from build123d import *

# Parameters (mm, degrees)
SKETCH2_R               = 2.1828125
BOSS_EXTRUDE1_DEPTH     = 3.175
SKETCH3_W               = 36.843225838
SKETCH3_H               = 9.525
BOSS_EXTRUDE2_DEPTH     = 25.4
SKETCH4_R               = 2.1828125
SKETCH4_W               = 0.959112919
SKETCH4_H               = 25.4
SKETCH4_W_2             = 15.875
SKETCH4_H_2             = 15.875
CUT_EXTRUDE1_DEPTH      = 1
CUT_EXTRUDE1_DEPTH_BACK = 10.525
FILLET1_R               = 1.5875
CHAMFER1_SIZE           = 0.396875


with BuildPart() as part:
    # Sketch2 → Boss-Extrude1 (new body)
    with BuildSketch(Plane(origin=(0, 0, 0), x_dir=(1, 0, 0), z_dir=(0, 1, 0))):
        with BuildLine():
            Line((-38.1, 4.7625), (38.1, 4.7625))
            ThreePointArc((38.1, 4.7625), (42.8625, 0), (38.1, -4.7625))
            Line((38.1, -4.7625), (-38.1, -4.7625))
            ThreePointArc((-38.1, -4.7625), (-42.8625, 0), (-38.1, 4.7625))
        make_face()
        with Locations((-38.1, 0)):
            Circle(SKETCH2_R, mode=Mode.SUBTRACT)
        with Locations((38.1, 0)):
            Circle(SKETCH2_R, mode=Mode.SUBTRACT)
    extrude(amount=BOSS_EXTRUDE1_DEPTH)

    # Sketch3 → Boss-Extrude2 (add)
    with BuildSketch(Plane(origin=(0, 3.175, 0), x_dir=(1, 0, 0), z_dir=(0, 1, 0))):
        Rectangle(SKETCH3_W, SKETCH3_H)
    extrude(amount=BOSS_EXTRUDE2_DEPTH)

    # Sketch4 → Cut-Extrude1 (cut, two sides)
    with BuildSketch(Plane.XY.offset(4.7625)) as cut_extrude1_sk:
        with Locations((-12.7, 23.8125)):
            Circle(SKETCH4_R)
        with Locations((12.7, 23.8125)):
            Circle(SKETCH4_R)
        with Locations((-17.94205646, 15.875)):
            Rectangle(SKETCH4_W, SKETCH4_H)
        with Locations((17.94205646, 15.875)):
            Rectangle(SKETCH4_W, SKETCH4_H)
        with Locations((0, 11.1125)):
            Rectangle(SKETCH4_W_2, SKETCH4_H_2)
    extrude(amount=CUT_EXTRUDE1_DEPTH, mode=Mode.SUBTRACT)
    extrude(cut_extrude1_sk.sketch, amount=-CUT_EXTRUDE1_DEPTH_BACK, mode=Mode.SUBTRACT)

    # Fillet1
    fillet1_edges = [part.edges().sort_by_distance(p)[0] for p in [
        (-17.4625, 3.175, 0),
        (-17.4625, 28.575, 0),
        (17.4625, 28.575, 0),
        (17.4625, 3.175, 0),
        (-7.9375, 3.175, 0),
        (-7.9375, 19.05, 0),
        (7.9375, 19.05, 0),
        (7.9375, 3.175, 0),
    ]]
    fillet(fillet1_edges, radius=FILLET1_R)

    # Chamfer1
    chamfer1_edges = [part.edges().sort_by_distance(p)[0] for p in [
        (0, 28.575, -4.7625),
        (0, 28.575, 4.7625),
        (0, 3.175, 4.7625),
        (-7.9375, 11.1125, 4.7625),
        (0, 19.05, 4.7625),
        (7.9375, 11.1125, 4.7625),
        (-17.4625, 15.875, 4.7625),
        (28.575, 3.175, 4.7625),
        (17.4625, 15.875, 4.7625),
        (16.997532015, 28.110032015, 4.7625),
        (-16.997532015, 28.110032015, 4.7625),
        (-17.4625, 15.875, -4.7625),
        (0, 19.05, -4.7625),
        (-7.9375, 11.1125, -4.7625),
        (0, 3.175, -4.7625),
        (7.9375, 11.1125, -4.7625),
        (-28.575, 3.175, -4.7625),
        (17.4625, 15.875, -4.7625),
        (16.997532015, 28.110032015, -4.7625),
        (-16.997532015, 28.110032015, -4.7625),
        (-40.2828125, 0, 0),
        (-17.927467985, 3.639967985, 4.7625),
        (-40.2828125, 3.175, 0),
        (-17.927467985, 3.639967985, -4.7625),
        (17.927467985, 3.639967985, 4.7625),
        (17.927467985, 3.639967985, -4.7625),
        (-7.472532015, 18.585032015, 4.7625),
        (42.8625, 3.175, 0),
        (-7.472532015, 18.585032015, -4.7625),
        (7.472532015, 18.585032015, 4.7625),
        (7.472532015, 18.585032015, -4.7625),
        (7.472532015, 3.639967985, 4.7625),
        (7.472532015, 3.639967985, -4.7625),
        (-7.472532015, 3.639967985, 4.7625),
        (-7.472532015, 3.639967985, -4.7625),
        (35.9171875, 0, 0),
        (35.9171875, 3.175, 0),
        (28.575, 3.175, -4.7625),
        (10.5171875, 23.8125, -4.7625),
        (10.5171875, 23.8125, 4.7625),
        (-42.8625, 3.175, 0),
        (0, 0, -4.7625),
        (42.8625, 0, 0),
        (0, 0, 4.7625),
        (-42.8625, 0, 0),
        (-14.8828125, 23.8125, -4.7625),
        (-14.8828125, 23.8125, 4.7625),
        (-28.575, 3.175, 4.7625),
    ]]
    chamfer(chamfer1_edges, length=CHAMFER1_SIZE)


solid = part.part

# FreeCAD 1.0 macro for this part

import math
import FreeCAD as App
import Part
import Sketcher
Q = App.Units.Quantity


def edges_at(feature, points):
    """Names of the edges that pass closest to the given points."""
    edges = feature.Shape.Edges
    near = lambda p: min(range(len(edges)), key=lambda i: edges[i].distToShape(Part.Vertex(*p))[0])
    return sorted({f"Edge{near(p) + 1}" for p in points})


def add_polygon(sketch, points):
    """Adds a closed chain of lines whose ends are joined by coincident constraints."""
    first, n = sketch.GeometryCount, len(points)
    for a, b in zip(points, points[1:] + points[:1]):
        sketch.addGeometry(Part.LineSegment(App.Vector(*a, 0), App.Vector(*b, 0)), False)
    for i in range(n):
        sketch.addConstraint(Sketcher.Constraint("Coincident", first + i, 2, first + (i + 1) % n, 1))

doc = App.newDocument("Part")
body = doc.addObject("PartDesign::Body", "Body")

sketch1 = doc.addObject("Sketcher::SketchObject", "Sketch")
body.addObject(sketch1)
sketch1.AttachmentSupport = (doc.XZ_Plane, [""])
sketch1.MapMode = "FlatFace"
sketch1.addGeometry([
    Part.LineSegment(App.Vector(38.1, -4.8, 0), App.Vector(-38.1, -4.8, 0)),
    Part.ArcOfCircle(Part.Circle(App.Vector(-38.1, 0, 0), App.Vector(0, 0, 1), 4.8), math.radians(90), math.radians(270)),
    Part.LineSegment(App.Vector(-38.1, 4.8, 0), App.Vector(38.1, 4.8, 0)),
    Part.ArcOfCircle(Part.Circle(App.Vector(38.1, 0, 0), App.Vector(0, 0, 1), 4.8), math.radians(-90), math.radians(90)),
    Part.Circle(App.Vector(38.1, 0, 0), App.Vector(0, 0, 1), 2.2),
    Part.Circle(App.Vector(-38.1, 0, 0), App.Vector(0, 0, 1), 2.2),
], False)
sketch1.addConstraint([
    Sketcher.Constraint("Tangent", 0, 2, 1, 2),
    Sketcher.Constraint("Tangent", 1, 1, 2, 1),
    Sketcher.Constraint("Tangent", 2, 2, 3, 2),
    Sketcher.Constraint("Tangent", 3, 1, 0, 1),
    Sketcher.Constraint("Horizontal", 0),
    Sketcher.Constraint("Horizontal", 2),
    Sketcher.Constraint("Coincident", 4, 3, 3, 3),
    Sketcher.Constraint("Coincident", 5, 3, 1, 3),
    Sketcher.Constraint("Equal", 4, 5),
    Sketcher.Constraint("Symmetric", 1, 3, 3, 3, -1, 1),
    Sketcher.Constraint("DistanceX", 0, 2, 0, 1, Q("3 in")),
    Sketcher.Constraint("Diameter", 4, Q("0.171875 in")),
    Sketcher.Constraint("Radius", 1, Q("0.1875 in")),
])
pad1 = doc.addObject("PartDesign::Pad", "Pad")
body.addObject(pad1)
pad1.Profile = sketch1
pad1.Length = Q("0.125 in")
pad1.Reversed = True

sketch2 = doc.addObject("Sketcher::SketchObject", "Sketch001")
body.addObject(sketch2)
sketch2.AttachmentSupport = (doc.XZ_Plane, [""])
sketch2.MapMode = "FlatFace"
sketch2.AttachmentOffset = App.Placement(App.Vector(0, 0, -0.125 * 25.4), App.Rotation())
add_polygon(sketch2, [(-18, -5), (-18, 5), (18, 5), (18, -5)])
sketch2.addConstraint([
    Sketcher.Constraint("Vertical", 0),
    Sketcher.Constraint("Horizontal", 1),
    Sketcher.Constraint("Vertical", 2),
    Sketcher.Constraint("Horizontal", 3),
    Sketcher.Constraint("Symmetric", 0, 2, 2, 2, -1, 1),
    Sketcher.Constraint("DistanceY", 0, 1, 0, 2, Q("0.375 in")),
    Sketcher.Constraint("DistanceX", 1, 1, 1, 2, 36.843226),
])
pad2 = doc.addObject("PartDesign::Pad", "Pad001")
body.addObject(pad2)
pad2.Profile = sketch2
pad2.Length = Q("1 in")
pad2.Reversed = True

sketch3 = doc.addObject("Sketcher::SketchObject", "Sketch002")
body.addObject(sketch3)
sketch3.AttachmentSupport = (doc.XY_Plane, [""])
sketch3.MapMode = "FlatFace"
sketch3.AttachmentOffset = App.Placement(App.Vector(0, 0, 0.1875 * 25.4), App.Rotation())
sketch3.addGeometry(Part.Circle(App.Vector(-12.7, 23.8, 0), App.Vector(0, 0, 1), 2.2), False)
sketch3.addGeometry(Part.Circle(App.Vector(12.7, 23.8, 0), App.Vector(0, 0, 1), 2.2), False)
add_polygon(sketch3, [(-18.4, 28.6), (-18.4, 3.2), (-17.5, 3.2), (-17.5, 28.6)])
add_polygon(sketch3, [(17.5, 28.6), (17.5, 3.2), (18.4, 3.2), (18.4, 28.6)])
add_polygon(sketch3, [(-7.9, 19.1), (-7.9, 3.2), (7.9, 3.2), (7.9, 19.1)])
sketch3.addConstraint([
    Sketcher.Constraint("Vertical", 2),
    Sketcher.Constraint("Horizontal", 3),
    Sketcher.Constraint("Vertical", 4),
    Sketcher.Constraint("Horizontal", 5),
    Sketcher.Constraint("Vertical", 6),
    Sketcher.Constraint("Horizontal", 7),
    Sketcher.Constraint("Vertical", 8),
    Sketcher.Constraint("Horizontal", 9),
    Sketcher.Constraint("Vertical", 10),
    Sketcher.Constraint("Horizontal", 11),
    Sketcher.Constraint("Vertical", 12),
    Sketcher.Constraint("Horizontal", 13),
    Sketcher.Constraint("Equal", 0, 1),
    Sketcher.Constraint("Symmetric", 0, 3, 1, 3, -2),
    Sketcher.Constraint("Symmetric", 3, 2, 6, 2, -2),
    Sketcher.Constraint("Symmetric", 5, 2, 8, 2, -2),
    Sketcher.Constraint("Horizontal", 7, 2, 10, 2),
    Sketcher.Constraint("Equal", 13, 10),
    Sketcher.Constraint("DistanceY", 2, 2, 2, 1, Q("1 in")),
    Sketcher.Constraint("Diameter", 0, Q("0.171875 in")),
    Sketcher.Constraint("DistanceX", 0, 3, 1, 3, Q("1 in")),
    Sketcher.Constraint("DistanceX", 10, 2, 6, 2, Q("1 in")),
    Sketcher.Constraint("DistanceX", 3, 2, 11, 2, Q("1 in")),
    Sketcher.Constraint("DistanceX", 11, 1, 11, 2, Q("0.625 in")),
    Sketcher.Constraint("DistanceY", -1, 1, 12, 2, Q("0.75 in")),
    Sketcher.Constraint("DistanceY", -1, 1, 0, 3, Q("0.9375 in")),
    Sketcher.Constraint("DistanceX", 3, 1, 3, 2, 0.959113),
])
pocket1 = doc.addObject("PartDesign::Pocket", "Pocket")
body.addObject(pocket1)
pocket1.Profile = sketch3
pocket1.Type = "ThroughAll"
pocket1.Midplane = True
doc.recompute()

fillet = doc.addObject("PartDesign::Fillet", "Fillet")
body.addObject(fillet)
fillet.Base = (pocket1, edges_at(pocket1, [
    (-17.463, 3.175, 0),
    (-17.463, 28.575, 0),
    (17.463, 28.575, 0),
    (17.463, 3.175, 0),
    (-7.938, 3.175, 0),
    (-7.938, 19.05, 0),
    (7.938, 19.05, 0),
    (7.938, 3.175, 0),
]))
fillet.Radius = Q("0.0625 in")
doc.recompute()

chamfer = doc.addObject("PartDesign::Chamfer", "Chamfer")
body.addObject(chamfer)
chamfer.Base = (fillet, edges_at(fillet, [
    (0, 28.575, -4.763),
    (0, 28.575, 4.763),
    (0, 3.175, 4.763),
    (-7.938, 11.113, 4.763),
    (0, 19.05, 4.763),
    (7.938, 11.113, 4.763),
    (-17.463, 15.875, 4.763),
    (28.575, 3.175, 4.763),
    (17.463, 15.875, 4.763),
    (16.998, 28.11, 4.763),
    (-16.998, 28.11, 4.763),
    (-17.463, 15.875, -4.763),
    (0, 19.05, -4.763),
    (-7.938, 11.113, -4.763),
    (0, 3.175, -4.763),
    (7.938, 11.113, -4.763),
    (-28.575, 3.175, -4.763),
    (17.463, 15.875, -4.763),
    (16.998, 28.11, -4.763),
    (-16.998, 28.11, -4.763),
    (-40.283, 0, 0),
    (-17.927, 3.64, 4.763),
    (-40.283, 3.175, 0),
    (-17.927, 3.64, -4.763),
    (17.927, 3.64, 4.763),
    (17.927, 3.64, -4.763),
    (-7.473, 18.585, 4.763),
    (42.862, 3.175, 0),
    (-7.473, 18.585, -4.763),
    (7.473, 18.585, 4.763),
    (7.473, 18.585, -4.763),
    (7.473, 3.64, 4.763),
    (7.473, 3.64, -4.763),
    (-7.473, 3.64, 4.763),
    (-7.473, 3.64, -4.763),
    (35.917, 0, 0),
    (35.917, 3.175, 0),
    (28.575, 3.175, -4.763),
    (10.517, 23.812, -4.763),
    (10.517, 23.812, 4.763),
    (-42.862, 3.175, 0),
    (0, 0, -4.763),
    (42.862, 0, 0),
    (0, 0, 4.763),
    (-42.862, 0, 0),
    (-14.883, 23.812, -4.763),
    (-14.883, 23.812, 4.763),
    (-28.575, 3.175, 4.763),
]))
chamfer.Size = Q("0.015625 in")

doc.recompute()
